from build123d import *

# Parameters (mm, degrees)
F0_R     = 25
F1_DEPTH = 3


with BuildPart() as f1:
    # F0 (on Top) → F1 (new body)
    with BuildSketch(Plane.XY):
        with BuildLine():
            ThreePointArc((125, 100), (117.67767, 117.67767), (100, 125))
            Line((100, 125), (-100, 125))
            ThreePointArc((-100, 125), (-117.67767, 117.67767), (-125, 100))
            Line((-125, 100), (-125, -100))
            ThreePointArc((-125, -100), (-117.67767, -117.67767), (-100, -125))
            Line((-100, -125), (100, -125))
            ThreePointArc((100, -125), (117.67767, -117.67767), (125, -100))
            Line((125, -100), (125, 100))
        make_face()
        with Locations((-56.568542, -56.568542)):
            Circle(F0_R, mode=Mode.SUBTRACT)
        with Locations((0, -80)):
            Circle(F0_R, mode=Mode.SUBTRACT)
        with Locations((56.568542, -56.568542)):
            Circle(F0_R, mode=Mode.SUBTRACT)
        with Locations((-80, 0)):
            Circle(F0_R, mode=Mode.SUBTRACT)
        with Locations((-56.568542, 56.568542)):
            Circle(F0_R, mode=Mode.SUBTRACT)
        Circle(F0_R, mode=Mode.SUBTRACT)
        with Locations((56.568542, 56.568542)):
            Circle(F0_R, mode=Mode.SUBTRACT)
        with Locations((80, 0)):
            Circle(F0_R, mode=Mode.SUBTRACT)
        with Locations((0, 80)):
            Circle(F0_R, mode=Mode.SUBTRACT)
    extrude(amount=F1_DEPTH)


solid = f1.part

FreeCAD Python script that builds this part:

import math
import FreeCAD as App
import Part
import Sketcher
Q = App.Units.Quantity

doc = App.newDocument("Part")
params = doc.addObject("Spreadsheet::Sheet", "Params")
for row, (alias, value) in enumerate([
    ("sketch1_diameter", "50 mm"),
    ("sketch1_width", "200 mm"),
    ("pad1_length", "3 mm"),
], start=1):
    params.set(f"A{row}", alias)
    params.set(f"B{row}", "=" + value)
    params.setAlias(f"B{row}", alias)

body = doc.addObject("PartDesign::Body", "Body")

# Sketch on XY plane
sketch1 = body.newObject("Sketcher::SketchObject", "Sketch")
sketch1.AttachmentSupport = (doc.getObject("XY_Plane"), [""])
sketch1.MapMode = "FlatFace"
sketch1.addGeometry([
    Part.ArcOfCircle(Part.Circle(App.Vector(100, 100, 0), App.Vector(0, 0, 1), 25), math.radians(0), math.radians(90)),  # 0
    Part.LineSegment(App.Vector(100, 125, 0), App.Vector(-100, 125, 0)),  # 1
    Part.ArcOfCircle(Part.Circle(App.Vector(-100, 100, 0), App.Vector(0, 0, 1), 25), math.radians(90), math.radians(180)),  # 2
    Part.LineSegment(App.Vector(-125, 100, 0), App.Vector(-125, -100, 0)),  # 3
    Part.ArcOfCircle(Part.Circle(App.Vector(-100, -100, 0), App.Vector(0, 0, 1), 25), math.radians(180), math.radians(270)),  # 4
    Part.LineSegment(App.Vector(-100, -125, 0), App.Vector(100, -125, 0)),  # 5
    Part.ArcOfCircle(Part.Circle(App.Vector(100, -100, 0), App.Vector(0, 0, 1), 25), math.radians(-90), math.radians(0)),  # 6
    Part.LineSegment(App.Vector(125, -100, 0), App.Vector(125, 100, 0)),  # 7
    Part.Circle(App.Vector(-57, -57, 0), App.Vector(0, 0, 1), 25),  # 8
    Part.Circle(App.Vector(0, -80, 0), App.Vector(0, 0, 1), 25),  # 9
    Part.Circle(App.Vector(57, -57, 0), App.Vector(0, 0, 1), 25),  # 10
    Part.Circle(App.Vector(-80, 0, 0), App.Vector(0, 0, 1), 25),  # 11
    Part.Circle(App.Vector(-57, 57, 0), App.Vector(0, 0, 1), 25),  # 12
    Part.Circle(App.Vector(0, 0, 0), App.Vector(0, 0, 1), 25),  # 13
    Part.Circle(App.Vector(80, 0, 0), App.Vector(0, 0, 1), 25),  # 14
    Part.Circle(App.Vector(0, 80, 0), App.Vector(0, 0, 1), 25),  # 15
    Part.Circle(App.Vector(57, 57, 0), App.Vector(0, 0, 1), 25),  # 16
], False)
sketch1.addConstraint([
    Sketcher.Constraint("Tangent", 0, 2, 1, 1),
    Sketcher.Constraint("Tangent", 1, 2, 2, 1),
    Sketcher.Constraint("Tangent", 2, 2, 3, 1),
    Sketcher.Constraint("Tangent", 3, 2, 4, 1),
    Sketcher.Constraint("Tangent", 4, 2, 5, 1),
    Sketcher.Constraint("Tangent", 5, 2, 6, 1),
    Sketcher.Constraint("Tangent", 6, 2, 7, 1),
    Sketcher.Constraint("Tangent", 7, 2, 0, 1),
    Sketcher.Constraint("Horizontal", 1),
    Sketcher.Constraint("Vertical", 3),
    Sketcher.Constraint("Horizontal", 5),
    Sketcher.Constraint("Vertical", 7),
    Sketcher.Constraint("Coincident", 13, 3, -1, 1),
    Sketcher.Constraint("Equal", 0, 2),
    Sketcher.Constraint("Equal", 2, 4),
    Sketcher.Constraint("Equal", 4, 6),
    Sketcher.Constraint("Equal", 6, 8),
    Sketcher.Constraint("Equal", 8, 9),
    Sketcher.Constraint("Equal", 9, 10),
    Sketcher.Constraint("Equal", 10, 11),
    Sketcher.Constraint("Equal", 11, 12),
    Sketcher.Constraint("Equal", 12, 13),
    Sketcher.Constraint("Equal", 13, 14),
    Sketcher.Constraint("Equal", 14, 15),
    Sketcher.Constraint("Equal", 15, 16),
    Sketcher.Constraint("Symmetric", 0, 3, 4, 3, -1, 1),
    Sketcher.Constraint("Symmetric", 10, 3, 12, 3, -1, 1),
    Sketcher.Constraint("Symmetric", 11, 3, 14, 3, -1, 1),
    Sketcher.Constraint("Symmetric", 9, 3, 15, 3, -1, 1),
    Sketcher.Constraint("Symmetric", 8, 3, 16, 3, -1, 1),
    Sketcher.Constraint("Symmetric", 8, 3, 10, 3, -2),
    Sketcher.Constraint("PointOnObject", 9, 3, -2),
    Sketcher.Constraint("PointOnObject", 11, 3, -1),
    Sketcher.Constraint("Equal", 5, 3),
    Sketcher.Constraint("Diameter", 8, Q("50 mm")),
    Sketcher.Constraint("DistanceX", 1, 2, 1, 1, Q("200 mm")),
    Sketcher.Constraint("DistanceY", 9, 3, -1, 1, Q("80 mm")),
    Sketcher.Constraint("DistanceX", 11, 3, -1, 1, Q("80 mm")),
    Sketcher.Constraint("DistanceX", 4, 3, 8, 3, Q("43.43146 mm")),
    Sketcher.Constraint("DistanceY", 4, 3, 8, 3, Q("43.43146 mm")),
])
sketch1.setExpression("Constraints[34]", "Params.sketch1_diameter")
sketch1.setExpression("Constraints[35]", "Params.sketch1_width")
pad1 = body.newObject("PartDesign::Pad", "Pad")
pad1.Profile = sketch1
pad1.setExpression("Length", "Params.pad1_length")

doc.recompute()
